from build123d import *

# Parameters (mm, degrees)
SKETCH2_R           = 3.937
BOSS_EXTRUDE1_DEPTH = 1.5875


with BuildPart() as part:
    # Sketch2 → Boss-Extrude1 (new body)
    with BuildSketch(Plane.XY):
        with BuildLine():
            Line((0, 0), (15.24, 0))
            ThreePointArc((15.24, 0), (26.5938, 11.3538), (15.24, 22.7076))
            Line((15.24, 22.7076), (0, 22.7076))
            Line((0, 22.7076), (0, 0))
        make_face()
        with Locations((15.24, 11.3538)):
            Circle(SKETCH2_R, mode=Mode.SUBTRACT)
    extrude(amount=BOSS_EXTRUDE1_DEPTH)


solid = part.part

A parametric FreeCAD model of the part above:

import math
import FreeCAD as App
import Part
import Sketcher
Q = App.Units.Quantity

doc = App.newDocument("Part")
params = doc.addObject("Spreadsheet::Sheet", "Params")
for row, (alias, value) in enumerate([
    ("sketch1_diameter", "0.31 in"),
    ("sketch1_width", "0.6 in"),
    ("sketch1_radius", "0.447 in"),
    ("pad1_length", "0.0625 in"),
], start=1):
    params.set(f"A{row}", alias)
    params.set(f"B{row}", "=" + value)
    params.setAlias(f"B{row}", alias)

body = doc.addObject("PartDesign::Body", "Body")

# Sketch on XY plane
sketch1 = body.newObject("Sketcher::SketchObject", "Sketch")
sketch1.AttachmentSupport = (doc.getObject("XY_Plane"), [""])
sketch1.MapMode = "FlatFace"
sketch1.addGeometry([
    Part.LineSegment(App.Vector(0, 0, 0), App.Vector(15.2, 0, 0)),  # 0
    Part.ArcOfCircle(Part.Circle(App.Vector(15.2, 11.4, 0), App.Vector(0, 0, 1), 11.4), math.radians(-90), math.radians(90)),  # 1
    Part.LineSegment(App.Vector(15.2, 22.7, 0), App.Vector(0, 22.7, 0)),  # 2
    Part.LineSegment(App.Vector(0, 22.7, 0), App.Vector(0, 0, 0)),  # 3
    Part.Circle(App.Vector(15.2, 11.4, 0), App.Vector(0, 0, 1), 3.9),  # 4
], False)
sketch1.addConstraint([
    Sketcher.Constraint("Tangent", 0, 2, 1, 1),
    Sketcher.Constraint("Tangent", 1, 2, 2, 1),
    Sketcher.Constraint("Coincident", 2, 2, 3, 1),
    Sketcher.Constraint("Coincident", 3, 2, 0, 1),
    Sketcher.Constraint("Horizontal", 0),
    Sketcher.Constraint("Horizontal", 2),
    Sketcher.Constraint("Vertical", 3),
    Sketcher.Constraint("Coincident", 3, 2, -1, 1),
    Sketcher.Constraint("Coincident", 4, 3, 1, 3),
    Sketcher.Constraint("Diameter", 4, Q("0.31 in")),
    Sketcher.Constraint("DistanceX", 0, 1, 0, 2, Q("0.6 in")),
    Sketcher.Constraint("Radius", 1, Q("0.447 in")),
])
sketch1.setExpression("Constraints[9]", "Params.sketch1_diameter")
sketch1.setExpression("Constraints[10]", "Params.sketch1_width")
sketch1.setExpression("Constraints[11]", "Params.sketch1_radius")
pad1 = body.newObject("PartDesign::Pad", "Pad")
pad1.Profile = sketch1
pad1.setExpression("Length", "Params.pad1_length")

doc.recompute()
